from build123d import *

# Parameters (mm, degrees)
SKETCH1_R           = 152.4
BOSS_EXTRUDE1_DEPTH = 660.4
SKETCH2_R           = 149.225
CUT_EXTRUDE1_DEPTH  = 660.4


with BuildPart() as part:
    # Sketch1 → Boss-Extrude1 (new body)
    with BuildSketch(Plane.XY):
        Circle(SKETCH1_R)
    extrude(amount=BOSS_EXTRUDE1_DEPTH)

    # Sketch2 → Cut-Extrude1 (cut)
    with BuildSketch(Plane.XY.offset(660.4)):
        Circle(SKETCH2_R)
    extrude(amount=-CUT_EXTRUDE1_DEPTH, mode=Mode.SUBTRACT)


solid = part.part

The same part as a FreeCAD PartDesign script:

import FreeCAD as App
import Part
import Sketcher
from FreeCAD import Vector
Q = App.Units.Quantity

doc = App.newDocument("Part")
body = doc.addObject("PartDesign::Body", "Body")

# Sketch on XY plane
sketch1 = doc.addObject("Sketcher::SketchObject", "Sketch")
body.addObject(sketch1)
sketch1.AttachmentSupport = (doc.XY_Plane, [""])
sketch1.MapMode = "FlatFace"
sketch1.addGeometry(Part.Circle(Vector(0, 0, 0), Vector(0, 0, 1), 152.4), False)
sketch1.addConstraint([
    Sketcher.Constraint("Coincident", 0, 3, -1, 1),
    Sketcher.Constraint("Diameter", 0, Q("12 in")),
])
pad1 = doc.addObject("PartDesign::Pad", "Pad")
body.addObject(pad1)
pad1.Profile = sketch1
pad1.Length = Q("26 in")

# Sketch on XY plane
sketch2 = doc.addObject("Sketcher::SketchObject", "Sketch001")
body.addObject(sketch2)
sketch2.AttachmentSupport = (doc.XY_Plane, [""])
sketch2.MapMode = "FlatFace"
sketch2.AttachmentOffset = App.Placement(Vector(0, 0, 26 * 25.4), App.Rotation())
sketch2.addGeometry(Part.Circle(Vector(0, 0, 0), Vector(0, 0, 1), 149.225), False)
sketch2.addConstraint([
    Sketcher.Constraint("Coincident", 0, 3, -1, 1),
    Sketcher.Constraint("Diameter", 0, Q("11.75 in")),
])
pocket1 = doc.addObject("PartDesign::Pocket", "Pocket")
body.addObject(pocket1)
pocket1.Profile = sketch2
pocket1.Length = Q("26 in")

doc.recompute()
